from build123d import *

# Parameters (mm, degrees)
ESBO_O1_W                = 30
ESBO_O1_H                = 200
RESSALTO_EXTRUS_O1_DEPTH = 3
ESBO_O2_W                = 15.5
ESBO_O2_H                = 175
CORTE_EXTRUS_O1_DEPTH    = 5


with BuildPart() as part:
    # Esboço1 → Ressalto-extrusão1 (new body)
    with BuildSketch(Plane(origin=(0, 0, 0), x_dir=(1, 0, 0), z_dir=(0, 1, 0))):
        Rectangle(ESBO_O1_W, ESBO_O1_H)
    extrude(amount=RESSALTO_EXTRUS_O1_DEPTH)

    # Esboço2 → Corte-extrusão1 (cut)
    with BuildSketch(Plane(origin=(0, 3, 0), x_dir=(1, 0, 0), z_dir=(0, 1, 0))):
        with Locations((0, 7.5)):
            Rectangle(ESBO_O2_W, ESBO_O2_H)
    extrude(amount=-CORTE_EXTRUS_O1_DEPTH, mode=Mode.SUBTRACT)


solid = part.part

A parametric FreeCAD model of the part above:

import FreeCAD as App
import Part
import Sketcher

V = App.Vector
Q = App.Units.Quantity

doc = App.newDocument("Part")
params = doc.addObject("Spreadsheet::Sheet", "Params")
for row, (alias, value) in enumerate([
    ("sketch1_width", "30 mm"),
    ("sketch1_height", "200 mm"),
    ("pad1_length", "3 mm"),
    ("sketch2_height", "175 mm"),
    ("sketch2_width", "15.5 mm"),
    ("pocket1_length", "5 mm"),
], start=1):
    params.set(f"A{row}", alias)
    params.set(f"B{row}", "=" + value)
    params.setAlias(f"B{row}", alias)

body = doc.addObject("PartDesign::Body", "Body")

# Sketch on XZ plane
sketch1 = body.newObject("Sketcher::SketchObject", "Sketch")
sketch1.AttachmentSupport = (doc.getObject("XZ_Plane"), [""])
sketch1.MapMode = "FlatFace"
sketch1.addGeometry([
    Part.LineSegment(V(-15, -100, 0), V(-15, 100, 0)),
    Part.LineSegment(V(-15, 100, 0), V(15, 100, 0)),
    Part.LineSegment(V(15, 100, 0), V(15, -100, 0)),
    Part.LineSegment(V(15, -100, 0), V(-15, -100, 0)),
], False)
sketch1.addConstraint([
    Sketcher.Constraint("Coincident", 0, 2, 1, 1),
    Sketcher.Constraint("Coincident", 1, 2, 2, 1),
    Sketcher.Constraint("Coincident", 2, 2, 3, 1),
    Sketcher.Constraint("Coincident", 3, 2, 0, 1),
    Sketcher.Constraint("Vertical", 0),
    Sketcher.Constraint("Horizontal", 1),
    Sketcher.Constraint("Vertical", 2),
    Sketcher.Constraint("Horizontal", 3),
    Sketcher.Constraint("Symmetric", 0, 2, 2, 2, -1, 1),
    Sketcher.Constraint("DistanceX", 1, 1, 1, 2, Q("30 mm")),
    Sketcher.Constraint("DistanceY", 0, 1, 0, 2, Q("200 mm")),
])
sketch1.setExpression("Constraints[9]", "Params.sketch1_width")
sketch1.setExpression("Constraints[10]", "Params.sketch1_height")
pad1 = body.newObject("PartDesign::Pad", "Pad")
pad1.Profile = sketch1
pad1.setExpression("Length", "Params.pad1_length")
pad1.Reversed = True

# Sketch on XZ plane
sketch2 = body.newObject("Sketcher::SketchObject", "Sketch001")
sketch2.AttachmentSupport = (doc.getObject("XZ_Plane"), [""])
sketch2.MapMode = "FlatFace"
sketch2.AttachmentOffset = App.Placement(V(0, 0, -3), App.Rotation())
sketch2.addGeometry([
    Part.LineSegment(V(-8, -95, 0), V(-8, 80, 0)),
    Part.LineSegment(V(-8, 80, 0), V(8, 80, 0)),
    Part.LineSegment(V(8, 80, 0), V(8, -95, 0)),
    Part.LineSegment(V(8, -95, 0), V(-8, -95, 0)),
], False)
sketch2.addConstraint([
    Sketcher.Constraint("Coincident", 0, 2, 1, 1),
    Sketcher.Constraint("Coincident", 1, 2, 2, 1),
    Sketcher.Constraint("Coincident", 2, 2, 3, 1),
    Sketcher.Constraint("Coincident", 3, 2, 0, 1),
    Sketcher.Constraint("Vertical", 0),
    Sketcher.Constraint("Horizontal", 1),
    Sketcher.Constraint("Vertical", 2),
    Sketcher.Constraint("Horizontal", 3),
    Sketcher.Constraint("DistanceY", 0, 1, 0, 2, Q("175 mm")),
    Sketcher.Constraint("DistanceX", 1, 1, 1, 2, Q("15.5 mm")),
    Sketcher.Constraint("DistanceY", -1, 1, 0, 2, Q("80 mm")),
    Sketcher.Constraint("DistanceX", 0, 2, -1, 1, Q("7.75 mm")),
])
sketch2.setExpression("Constraints[8]", "Params.sketch2_height")
sketch2.setExpression("Constraints[9]", "Params.sketch2_width")
pocket1 = body.newObject("PartDesign::Pocket", "Pocket")
pocket1.Profile = sketch2
pocket1.setExpression("Length", "Params.pocket1_length")
pocket1.Reversed = True

doc.recompute()
